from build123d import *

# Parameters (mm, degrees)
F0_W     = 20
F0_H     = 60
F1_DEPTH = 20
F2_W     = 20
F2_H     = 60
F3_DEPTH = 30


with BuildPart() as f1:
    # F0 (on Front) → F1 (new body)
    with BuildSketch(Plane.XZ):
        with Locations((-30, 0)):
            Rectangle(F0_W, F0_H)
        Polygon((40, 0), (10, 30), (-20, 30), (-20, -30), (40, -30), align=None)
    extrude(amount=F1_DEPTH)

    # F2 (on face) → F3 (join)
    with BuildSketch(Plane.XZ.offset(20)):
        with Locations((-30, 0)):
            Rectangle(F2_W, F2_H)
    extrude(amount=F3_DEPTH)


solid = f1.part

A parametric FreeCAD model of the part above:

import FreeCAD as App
import Part
import Sketcher
from FreeCAD import Vector


def add_polygon(sketch, points):
    """Adds a closed chain of lines whose ends are joined by coincident constraints."""
    first, n = sketch.GeometryCount, len(points)
    for a, b in zip(points, points[1:] + points[:1]):
        sketch.addGeometry(Part.LineSegment(App.Vector(*a, 0), App.Vector(*b, 0)), False)
    for i in range(n):
        sketch.addConstraint(Sketcher.Constraint("Coincident", first + i, 2, first + (i + 1) % n, 1))

doc = App.newDocument("Part")
body = doc.addObject("PartDesign::Body", "Body")

# Sketch on XZ plane
sketch1 = body.newObject("Sketcher::SketchObject", "Sketch")
sketch1.AttachmentSupport = (doc.getObject("XZ_Plane"), [""])
sketch1.MapMode = "FlatFace"
add_polygon(sketch1, [(-40, 30), (-40, -30), (40, -30), (40, 0), (10, 30)])  # lines 0-4
sketch1.addConstraint(Sketcher.Constraint("Vertical", 0))
sketch1.addConstraint(Sketcher.Constraint("Horizontal", 1))
sketch1.addConstraint(Sketcher.Constraint("Vertical", 2))
sketch1.addConstraint(Sketcher.Constraint("Horizontal", 4))
sketch1.addConstraint(Sketcher.Constraint("Symmetric", 1, 2, 4, 2, -1, 1))
sketch1.addConstraint(Sketcher.Constraint("PointOnObject", 2, 2, -1))
sketch1.addConstraint(Sketcher.Constraint("DistanceX", 1, 1, 1, 2, 80.0))
sketch1.addConstraint(Sketcher.Constraint("DistanceX", 4, 2, 4, 1, 50.0))
sketch1.addConstraint(Sketcher.Constraint("DistanceY", 0, 2, 0, 1, 60.0))
pad1 = body.newObject("PartDesign::Pad", "Pad")
pad1.Profile = sketch1
pad1.Length = 20

# Sketch on XZ plane
sketch2 = body.newObject("Sketcher::SketchObject", "Sketch001")
sketch2.AttachmentSupport = (doc.getObject("XZ_Plane"), [""])
sketch2.MapMode = "FlatFace"
sketch2.AttachmentOffset = App.Placement(Vector(0, 0, 20), App.Rotation())
add_polygon(sketch2, [(-40, 30), (-40, -30), (-20, -30), (-20, 30)])  # lines 0-3
sketch2.addConstraint(Sketcher.Constraint("Vertical", 0))
sketch2.addConstraint(Sketcher.Constraint("Horizontal", 1))
sketch2.addConstraint(Sketcher.Constraint("Vertical", 2))
sketch2.addConstraint(Sketcher.Constraint("Horizontal", 3))
sketch2.addConstraint(Sketcher.Constraint("DistanceX", 1, 1, 1, 2, 20.0))
sketch2.addConstraint(Sketcher.Constraint("DistanceY", 0, 2, 0, 1, 60.0))
sketch2.addConstraint(Sketcher.Constraint("DistanceX", 0, 2, -1, 1, 40.0))
sketch2.addConstraint(Sketcher.Constraint("DistanceY", 0, 2, -1, 1, 30.0))
pad2 = body.newObject("PartDesign::Pad", "Pad001")
pad2.Profile = sketch2
pad2.Length = 30

doc.recompute()
